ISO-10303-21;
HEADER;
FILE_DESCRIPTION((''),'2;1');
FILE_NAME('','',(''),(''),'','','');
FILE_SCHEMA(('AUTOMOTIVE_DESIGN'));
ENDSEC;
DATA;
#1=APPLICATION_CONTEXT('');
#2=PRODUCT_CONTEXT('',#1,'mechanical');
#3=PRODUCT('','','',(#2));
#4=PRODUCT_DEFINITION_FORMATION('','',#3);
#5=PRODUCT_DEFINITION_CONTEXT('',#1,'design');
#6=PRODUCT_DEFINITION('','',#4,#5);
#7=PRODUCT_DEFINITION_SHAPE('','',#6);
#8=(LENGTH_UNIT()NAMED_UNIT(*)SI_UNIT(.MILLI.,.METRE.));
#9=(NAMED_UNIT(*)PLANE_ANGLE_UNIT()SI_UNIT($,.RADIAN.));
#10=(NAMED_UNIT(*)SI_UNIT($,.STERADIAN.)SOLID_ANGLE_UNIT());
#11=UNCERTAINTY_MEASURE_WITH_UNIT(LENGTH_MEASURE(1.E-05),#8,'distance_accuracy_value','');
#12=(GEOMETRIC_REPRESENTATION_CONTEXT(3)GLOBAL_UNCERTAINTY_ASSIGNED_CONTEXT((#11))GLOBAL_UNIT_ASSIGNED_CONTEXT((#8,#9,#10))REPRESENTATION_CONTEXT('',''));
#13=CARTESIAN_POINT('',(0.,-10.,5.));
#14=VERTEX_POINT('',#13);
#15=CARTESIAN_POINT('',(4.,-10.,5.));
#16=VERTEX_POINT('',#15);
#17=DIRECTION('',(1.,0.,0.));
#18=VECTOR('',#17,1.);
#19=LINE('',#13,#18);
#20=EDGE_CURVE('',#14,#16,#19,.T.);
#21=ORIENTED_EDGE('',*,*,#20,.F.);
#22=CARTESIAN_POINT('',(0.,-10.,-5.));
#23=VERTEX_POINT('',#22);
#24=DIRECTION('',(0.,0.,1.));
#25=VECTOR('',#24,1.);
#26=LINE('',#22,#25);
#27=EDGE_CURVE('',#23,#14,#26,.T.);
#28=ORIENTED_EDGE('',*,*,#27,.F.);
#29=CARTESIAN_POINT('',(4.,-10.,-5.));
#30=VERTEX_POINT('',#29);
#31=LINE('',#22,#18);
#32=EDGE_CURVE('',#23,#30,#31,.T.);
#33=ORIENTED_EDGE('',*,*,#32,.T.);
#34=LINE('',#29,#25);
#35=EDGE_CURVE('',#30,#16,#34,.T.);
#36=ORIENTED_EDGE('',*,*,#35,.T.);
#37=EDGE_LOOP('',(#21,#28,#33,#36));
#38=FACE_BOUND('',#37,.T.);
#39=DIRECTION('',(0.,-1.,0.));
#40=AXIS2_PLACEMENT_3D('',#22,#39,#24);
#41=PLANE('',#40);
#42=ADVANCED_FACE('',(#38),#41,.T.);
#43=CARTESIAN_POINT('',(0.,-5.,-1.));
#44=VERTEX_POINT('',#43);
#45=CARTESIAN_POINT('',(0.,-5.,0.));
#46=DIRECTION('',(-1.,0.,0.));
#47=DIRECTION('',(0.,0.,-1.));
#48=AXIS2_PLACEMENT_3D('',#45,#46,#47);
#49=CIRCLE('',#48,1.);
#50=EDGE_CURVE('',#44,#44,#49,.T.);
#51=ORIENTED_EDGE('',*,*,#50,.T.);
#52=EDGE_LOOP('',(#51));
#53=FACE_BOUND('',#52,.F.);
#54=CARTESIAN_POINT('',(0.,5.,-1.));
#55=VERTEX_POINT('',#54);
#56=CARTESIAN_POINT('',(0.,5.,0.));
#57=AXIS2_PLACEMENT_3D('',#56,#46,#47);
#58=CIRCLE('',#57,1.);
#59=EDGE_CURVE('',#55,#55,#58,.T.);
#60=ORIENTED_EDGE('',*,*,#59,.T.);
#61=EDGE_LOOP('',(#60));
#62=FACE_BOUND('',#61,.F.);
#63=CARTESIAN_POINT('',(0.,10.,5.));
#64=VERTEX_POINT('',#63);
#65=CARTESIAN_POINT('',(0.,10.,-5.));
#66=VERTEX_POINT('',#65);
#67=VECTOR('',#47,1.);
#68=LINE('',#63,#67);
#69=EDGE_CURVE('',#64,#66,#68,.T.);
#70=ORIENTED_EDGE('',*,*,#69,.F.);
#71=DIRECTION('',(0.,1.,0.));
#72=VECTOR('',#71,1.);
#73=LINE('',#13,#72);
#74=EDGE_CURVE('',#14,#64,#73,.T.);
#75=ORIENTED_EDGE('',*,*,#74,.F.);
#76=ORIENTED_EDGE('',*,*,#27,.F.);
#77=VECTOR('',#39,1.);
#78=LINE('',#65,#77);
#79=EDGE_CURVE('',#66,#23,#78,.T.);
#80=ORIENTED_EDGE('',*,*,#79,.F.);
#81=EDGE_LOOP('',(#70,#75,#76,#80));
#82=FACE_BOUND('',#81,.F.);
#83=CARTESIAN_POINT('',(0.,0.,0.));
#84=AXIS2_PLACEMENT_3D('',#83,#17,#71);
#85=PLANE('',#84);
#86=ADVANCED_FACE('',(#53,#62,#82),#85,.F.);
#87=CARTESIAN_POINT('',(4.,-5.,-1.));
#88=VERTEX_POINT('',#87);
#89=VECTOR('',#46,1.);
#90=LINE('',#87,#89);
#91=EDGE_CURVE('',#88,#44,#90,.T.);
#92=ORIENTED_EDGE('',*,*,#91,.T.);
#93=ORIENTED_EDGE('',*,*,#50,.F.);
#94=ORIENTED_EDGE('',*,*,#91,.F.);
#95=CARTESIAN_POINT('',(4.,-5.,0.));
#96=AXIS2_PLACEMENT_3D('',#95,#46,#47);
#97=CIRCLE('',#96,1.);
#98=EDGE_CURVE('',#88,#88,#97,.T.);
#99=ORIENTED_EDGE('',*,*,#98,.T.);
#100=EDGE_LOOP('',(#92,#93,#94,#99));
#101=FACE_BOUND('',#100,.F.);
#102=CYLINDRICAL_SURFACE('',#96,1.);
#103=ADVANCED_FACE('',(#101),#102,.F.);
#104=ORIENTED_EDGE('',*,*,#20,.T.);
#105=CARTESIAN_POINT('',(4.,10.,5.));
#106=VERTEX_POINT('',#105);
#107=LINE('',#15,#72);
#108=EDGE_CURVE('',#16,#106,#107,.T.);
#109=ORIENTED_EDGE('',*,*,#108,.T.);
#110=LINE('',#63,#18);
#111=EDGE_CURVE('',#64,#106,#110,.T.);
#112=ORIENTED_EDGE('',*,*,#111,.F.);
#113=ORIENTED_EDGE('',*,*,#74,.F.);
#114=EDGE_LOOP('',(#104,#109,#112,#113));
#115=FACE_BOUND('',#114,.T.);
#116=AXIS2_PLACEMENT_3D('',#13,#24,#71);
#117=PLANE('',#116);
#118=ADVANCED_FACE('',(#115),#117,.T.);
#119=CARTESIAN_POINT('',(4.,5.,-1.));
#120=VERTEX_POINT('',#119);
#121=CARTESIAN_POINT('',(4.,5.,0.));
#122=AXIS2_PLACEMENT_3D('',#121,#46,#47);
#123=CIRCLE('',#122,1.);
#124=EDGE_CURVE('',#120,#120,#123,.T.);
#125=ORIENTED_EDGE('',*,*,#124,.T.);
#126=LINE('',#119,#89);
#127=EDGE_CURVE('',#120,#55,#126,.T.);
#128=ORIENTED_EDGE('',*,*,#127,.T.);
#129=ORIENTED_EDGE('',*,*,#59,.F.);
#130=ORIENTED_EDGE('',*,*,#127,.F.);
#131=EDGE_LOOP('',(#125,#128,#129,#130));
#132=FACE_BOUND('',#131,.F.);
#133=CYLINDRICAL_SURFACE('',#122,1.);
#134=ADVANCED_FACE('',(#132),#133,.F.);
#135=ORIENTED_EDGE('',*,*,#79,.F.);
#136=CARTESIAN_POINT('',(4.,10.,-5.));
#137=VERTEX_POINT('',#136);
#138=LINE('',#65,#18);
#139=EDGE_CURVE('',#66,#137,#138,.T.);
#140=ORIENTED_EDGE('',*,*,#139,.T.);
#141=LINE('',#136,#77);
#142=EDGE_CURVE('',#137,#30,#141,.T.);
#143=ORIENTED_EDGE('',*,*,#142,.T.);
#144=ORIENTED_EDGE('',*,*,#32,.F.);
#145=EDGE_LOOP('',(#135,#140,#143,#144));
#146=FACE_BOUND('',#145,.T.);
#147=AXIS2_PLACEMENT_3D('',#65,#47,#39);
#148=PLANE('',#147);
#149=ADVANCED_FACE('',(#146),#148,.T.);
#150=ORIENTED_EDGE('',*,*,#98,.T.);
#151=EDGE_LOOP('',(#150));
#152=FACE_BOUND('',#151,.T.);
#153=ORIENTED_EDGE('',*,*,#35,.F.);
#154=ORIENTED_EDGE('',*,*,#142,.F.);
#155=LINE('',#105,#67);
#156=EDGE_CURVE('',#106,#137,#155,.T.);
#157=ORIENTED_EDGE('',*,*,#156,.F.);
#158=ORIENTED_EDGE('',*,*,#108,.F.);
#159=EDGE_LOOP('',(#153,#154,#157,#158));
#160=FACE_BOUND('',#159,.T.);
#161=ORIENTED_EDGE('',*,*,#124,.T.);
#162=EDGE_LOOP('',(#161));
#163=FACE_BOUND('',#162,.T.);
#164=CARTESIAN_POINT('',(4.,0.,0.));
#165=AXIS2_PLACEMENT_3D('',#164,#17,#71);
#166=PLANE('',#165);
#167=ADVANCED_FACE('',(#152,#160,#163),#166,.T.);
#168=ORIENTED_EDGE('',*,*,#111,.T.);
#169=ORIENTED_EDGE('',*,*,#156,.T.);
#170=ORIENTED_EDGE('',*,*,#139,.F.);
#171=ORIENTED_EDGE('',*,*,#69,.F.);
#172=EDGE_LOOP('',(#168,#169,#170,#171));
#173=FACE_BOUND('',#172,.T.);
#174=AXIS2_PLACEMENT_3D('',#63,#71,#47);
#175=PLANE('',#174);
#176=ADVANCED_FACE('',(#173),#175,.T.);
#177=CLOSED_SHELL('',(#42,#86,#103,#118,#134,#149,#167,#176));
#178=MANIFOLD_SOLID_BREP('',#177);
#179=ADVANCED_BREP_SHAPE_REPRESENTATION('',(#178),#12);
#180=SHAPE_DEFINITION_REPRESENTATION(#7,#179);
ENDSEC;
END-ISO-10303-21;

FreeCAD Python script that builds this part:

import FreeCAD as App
import Part
import Sketcher
Q = App.Units.Quantity

doc = App.newDocument("Part")
body = doc.addObject("PartDesign::Body", "Body")

# Sketch on YZ plane
sketch1 = doc.addObject("Sketcher::SketchObject", "Sketch")
body.addObject(sketch1)
sketch1.AttachmentSupport = (doc.YZ_Plane, [""])
sketch1.MapMode = "FlatFace"
sketch1.addGeometry([
    Part.LineSegment(App.Vector(10, 5, 0), App.Vector(-10, 5, 0)),
    Part.LineSegment(App.Vector(-10, 5, 0), App.Vector(-10, -5, 0)),
    Part.LineSegment(App.Vector(-10, -5, 0), App.Vector(10, -5, 0)),
    Part.LineSegment(App.Vector(10, -5, 0), App.Vector(10, 5, 0)),
], False)
sketch1.addConstraint([
    Sketcher.Constraint("Coincident", 0, 2, 1, 1),
    Sketcher.Constraint("Coincident", 1, 2, 2, 1),
    Sketcher.Constraint("Coincident", 2, 2, 3, 1),
    Sketcher.Constraint("Coincident", 3, 2, 0, 1),
    Sketcher.Constraint("Horizontal", 0),
    Sketcher.Constraint("Vertical", 1),
    Sketcher.Constraint("Horizontal", 2),
    Sketcher.Constraint("Vertical", 3),
    Sketcher.Constraint("Symmetric", 0, 2, 2, 2, -1, 1),
    Sketcher.Constraint("DistanceX", 0, 2, 0, 1, Q("20 mm")),
    Sketcher.Constraint("DistanceY", 1, 2, 1, 1, Q("10 mm")),
])
pad1 = doc.addObject("PartDesign::Pad", "Pad")
body.addObject(pad1)
pad1.Profile = sketch1
pad1.Length = 4

# Sketch on YZ plane
sketch2 = doc.addObject("Sketcher::SketchObject", "Sketch001")
body.addObject(sketch2)
sketch2.AttachmentSupport = (doc.YZ_Plane, [""])
sketch2.MapMode = "FlatFace"
sketch2.AttachmentOffset = App.Placement(App.Vector(0, 0, 4), App.Rotation())
sketch2.addGeometry([
    Part.Circle(App.Vector(5, 0, 0), App.Vector(0, 0, 1), 1),
    Part.Circle(App.Vector(-5, 0, 0), App.Vector(0, 0, 1), 1),
], False)
sketch2.addConstraint([
    Sketcher.Constraint("Equal", 0, 1),
    Sketcher.Constraint("Symmetric", 0, 3, 1, 3, -1, 1),
    Sketcher.Constraint("PointOnObject", 0, 3, -1),
    Sketcher.Constraint("Diameter", 0, Q("2 mm")),
    Sketcher.Constraint("DistanceX", -1, 1, 0, 3, Q("5 mm")),
])
doc.recompute()
hole = doc.addObject("PartDesign::Hole", "Hole")
body.addObject(hole)
hole.Profile = sketch2
hole.ThreadType = "None"
hole.Diameter = 2
hole.DepthType = "ThroughAll"

doc.recompute()
